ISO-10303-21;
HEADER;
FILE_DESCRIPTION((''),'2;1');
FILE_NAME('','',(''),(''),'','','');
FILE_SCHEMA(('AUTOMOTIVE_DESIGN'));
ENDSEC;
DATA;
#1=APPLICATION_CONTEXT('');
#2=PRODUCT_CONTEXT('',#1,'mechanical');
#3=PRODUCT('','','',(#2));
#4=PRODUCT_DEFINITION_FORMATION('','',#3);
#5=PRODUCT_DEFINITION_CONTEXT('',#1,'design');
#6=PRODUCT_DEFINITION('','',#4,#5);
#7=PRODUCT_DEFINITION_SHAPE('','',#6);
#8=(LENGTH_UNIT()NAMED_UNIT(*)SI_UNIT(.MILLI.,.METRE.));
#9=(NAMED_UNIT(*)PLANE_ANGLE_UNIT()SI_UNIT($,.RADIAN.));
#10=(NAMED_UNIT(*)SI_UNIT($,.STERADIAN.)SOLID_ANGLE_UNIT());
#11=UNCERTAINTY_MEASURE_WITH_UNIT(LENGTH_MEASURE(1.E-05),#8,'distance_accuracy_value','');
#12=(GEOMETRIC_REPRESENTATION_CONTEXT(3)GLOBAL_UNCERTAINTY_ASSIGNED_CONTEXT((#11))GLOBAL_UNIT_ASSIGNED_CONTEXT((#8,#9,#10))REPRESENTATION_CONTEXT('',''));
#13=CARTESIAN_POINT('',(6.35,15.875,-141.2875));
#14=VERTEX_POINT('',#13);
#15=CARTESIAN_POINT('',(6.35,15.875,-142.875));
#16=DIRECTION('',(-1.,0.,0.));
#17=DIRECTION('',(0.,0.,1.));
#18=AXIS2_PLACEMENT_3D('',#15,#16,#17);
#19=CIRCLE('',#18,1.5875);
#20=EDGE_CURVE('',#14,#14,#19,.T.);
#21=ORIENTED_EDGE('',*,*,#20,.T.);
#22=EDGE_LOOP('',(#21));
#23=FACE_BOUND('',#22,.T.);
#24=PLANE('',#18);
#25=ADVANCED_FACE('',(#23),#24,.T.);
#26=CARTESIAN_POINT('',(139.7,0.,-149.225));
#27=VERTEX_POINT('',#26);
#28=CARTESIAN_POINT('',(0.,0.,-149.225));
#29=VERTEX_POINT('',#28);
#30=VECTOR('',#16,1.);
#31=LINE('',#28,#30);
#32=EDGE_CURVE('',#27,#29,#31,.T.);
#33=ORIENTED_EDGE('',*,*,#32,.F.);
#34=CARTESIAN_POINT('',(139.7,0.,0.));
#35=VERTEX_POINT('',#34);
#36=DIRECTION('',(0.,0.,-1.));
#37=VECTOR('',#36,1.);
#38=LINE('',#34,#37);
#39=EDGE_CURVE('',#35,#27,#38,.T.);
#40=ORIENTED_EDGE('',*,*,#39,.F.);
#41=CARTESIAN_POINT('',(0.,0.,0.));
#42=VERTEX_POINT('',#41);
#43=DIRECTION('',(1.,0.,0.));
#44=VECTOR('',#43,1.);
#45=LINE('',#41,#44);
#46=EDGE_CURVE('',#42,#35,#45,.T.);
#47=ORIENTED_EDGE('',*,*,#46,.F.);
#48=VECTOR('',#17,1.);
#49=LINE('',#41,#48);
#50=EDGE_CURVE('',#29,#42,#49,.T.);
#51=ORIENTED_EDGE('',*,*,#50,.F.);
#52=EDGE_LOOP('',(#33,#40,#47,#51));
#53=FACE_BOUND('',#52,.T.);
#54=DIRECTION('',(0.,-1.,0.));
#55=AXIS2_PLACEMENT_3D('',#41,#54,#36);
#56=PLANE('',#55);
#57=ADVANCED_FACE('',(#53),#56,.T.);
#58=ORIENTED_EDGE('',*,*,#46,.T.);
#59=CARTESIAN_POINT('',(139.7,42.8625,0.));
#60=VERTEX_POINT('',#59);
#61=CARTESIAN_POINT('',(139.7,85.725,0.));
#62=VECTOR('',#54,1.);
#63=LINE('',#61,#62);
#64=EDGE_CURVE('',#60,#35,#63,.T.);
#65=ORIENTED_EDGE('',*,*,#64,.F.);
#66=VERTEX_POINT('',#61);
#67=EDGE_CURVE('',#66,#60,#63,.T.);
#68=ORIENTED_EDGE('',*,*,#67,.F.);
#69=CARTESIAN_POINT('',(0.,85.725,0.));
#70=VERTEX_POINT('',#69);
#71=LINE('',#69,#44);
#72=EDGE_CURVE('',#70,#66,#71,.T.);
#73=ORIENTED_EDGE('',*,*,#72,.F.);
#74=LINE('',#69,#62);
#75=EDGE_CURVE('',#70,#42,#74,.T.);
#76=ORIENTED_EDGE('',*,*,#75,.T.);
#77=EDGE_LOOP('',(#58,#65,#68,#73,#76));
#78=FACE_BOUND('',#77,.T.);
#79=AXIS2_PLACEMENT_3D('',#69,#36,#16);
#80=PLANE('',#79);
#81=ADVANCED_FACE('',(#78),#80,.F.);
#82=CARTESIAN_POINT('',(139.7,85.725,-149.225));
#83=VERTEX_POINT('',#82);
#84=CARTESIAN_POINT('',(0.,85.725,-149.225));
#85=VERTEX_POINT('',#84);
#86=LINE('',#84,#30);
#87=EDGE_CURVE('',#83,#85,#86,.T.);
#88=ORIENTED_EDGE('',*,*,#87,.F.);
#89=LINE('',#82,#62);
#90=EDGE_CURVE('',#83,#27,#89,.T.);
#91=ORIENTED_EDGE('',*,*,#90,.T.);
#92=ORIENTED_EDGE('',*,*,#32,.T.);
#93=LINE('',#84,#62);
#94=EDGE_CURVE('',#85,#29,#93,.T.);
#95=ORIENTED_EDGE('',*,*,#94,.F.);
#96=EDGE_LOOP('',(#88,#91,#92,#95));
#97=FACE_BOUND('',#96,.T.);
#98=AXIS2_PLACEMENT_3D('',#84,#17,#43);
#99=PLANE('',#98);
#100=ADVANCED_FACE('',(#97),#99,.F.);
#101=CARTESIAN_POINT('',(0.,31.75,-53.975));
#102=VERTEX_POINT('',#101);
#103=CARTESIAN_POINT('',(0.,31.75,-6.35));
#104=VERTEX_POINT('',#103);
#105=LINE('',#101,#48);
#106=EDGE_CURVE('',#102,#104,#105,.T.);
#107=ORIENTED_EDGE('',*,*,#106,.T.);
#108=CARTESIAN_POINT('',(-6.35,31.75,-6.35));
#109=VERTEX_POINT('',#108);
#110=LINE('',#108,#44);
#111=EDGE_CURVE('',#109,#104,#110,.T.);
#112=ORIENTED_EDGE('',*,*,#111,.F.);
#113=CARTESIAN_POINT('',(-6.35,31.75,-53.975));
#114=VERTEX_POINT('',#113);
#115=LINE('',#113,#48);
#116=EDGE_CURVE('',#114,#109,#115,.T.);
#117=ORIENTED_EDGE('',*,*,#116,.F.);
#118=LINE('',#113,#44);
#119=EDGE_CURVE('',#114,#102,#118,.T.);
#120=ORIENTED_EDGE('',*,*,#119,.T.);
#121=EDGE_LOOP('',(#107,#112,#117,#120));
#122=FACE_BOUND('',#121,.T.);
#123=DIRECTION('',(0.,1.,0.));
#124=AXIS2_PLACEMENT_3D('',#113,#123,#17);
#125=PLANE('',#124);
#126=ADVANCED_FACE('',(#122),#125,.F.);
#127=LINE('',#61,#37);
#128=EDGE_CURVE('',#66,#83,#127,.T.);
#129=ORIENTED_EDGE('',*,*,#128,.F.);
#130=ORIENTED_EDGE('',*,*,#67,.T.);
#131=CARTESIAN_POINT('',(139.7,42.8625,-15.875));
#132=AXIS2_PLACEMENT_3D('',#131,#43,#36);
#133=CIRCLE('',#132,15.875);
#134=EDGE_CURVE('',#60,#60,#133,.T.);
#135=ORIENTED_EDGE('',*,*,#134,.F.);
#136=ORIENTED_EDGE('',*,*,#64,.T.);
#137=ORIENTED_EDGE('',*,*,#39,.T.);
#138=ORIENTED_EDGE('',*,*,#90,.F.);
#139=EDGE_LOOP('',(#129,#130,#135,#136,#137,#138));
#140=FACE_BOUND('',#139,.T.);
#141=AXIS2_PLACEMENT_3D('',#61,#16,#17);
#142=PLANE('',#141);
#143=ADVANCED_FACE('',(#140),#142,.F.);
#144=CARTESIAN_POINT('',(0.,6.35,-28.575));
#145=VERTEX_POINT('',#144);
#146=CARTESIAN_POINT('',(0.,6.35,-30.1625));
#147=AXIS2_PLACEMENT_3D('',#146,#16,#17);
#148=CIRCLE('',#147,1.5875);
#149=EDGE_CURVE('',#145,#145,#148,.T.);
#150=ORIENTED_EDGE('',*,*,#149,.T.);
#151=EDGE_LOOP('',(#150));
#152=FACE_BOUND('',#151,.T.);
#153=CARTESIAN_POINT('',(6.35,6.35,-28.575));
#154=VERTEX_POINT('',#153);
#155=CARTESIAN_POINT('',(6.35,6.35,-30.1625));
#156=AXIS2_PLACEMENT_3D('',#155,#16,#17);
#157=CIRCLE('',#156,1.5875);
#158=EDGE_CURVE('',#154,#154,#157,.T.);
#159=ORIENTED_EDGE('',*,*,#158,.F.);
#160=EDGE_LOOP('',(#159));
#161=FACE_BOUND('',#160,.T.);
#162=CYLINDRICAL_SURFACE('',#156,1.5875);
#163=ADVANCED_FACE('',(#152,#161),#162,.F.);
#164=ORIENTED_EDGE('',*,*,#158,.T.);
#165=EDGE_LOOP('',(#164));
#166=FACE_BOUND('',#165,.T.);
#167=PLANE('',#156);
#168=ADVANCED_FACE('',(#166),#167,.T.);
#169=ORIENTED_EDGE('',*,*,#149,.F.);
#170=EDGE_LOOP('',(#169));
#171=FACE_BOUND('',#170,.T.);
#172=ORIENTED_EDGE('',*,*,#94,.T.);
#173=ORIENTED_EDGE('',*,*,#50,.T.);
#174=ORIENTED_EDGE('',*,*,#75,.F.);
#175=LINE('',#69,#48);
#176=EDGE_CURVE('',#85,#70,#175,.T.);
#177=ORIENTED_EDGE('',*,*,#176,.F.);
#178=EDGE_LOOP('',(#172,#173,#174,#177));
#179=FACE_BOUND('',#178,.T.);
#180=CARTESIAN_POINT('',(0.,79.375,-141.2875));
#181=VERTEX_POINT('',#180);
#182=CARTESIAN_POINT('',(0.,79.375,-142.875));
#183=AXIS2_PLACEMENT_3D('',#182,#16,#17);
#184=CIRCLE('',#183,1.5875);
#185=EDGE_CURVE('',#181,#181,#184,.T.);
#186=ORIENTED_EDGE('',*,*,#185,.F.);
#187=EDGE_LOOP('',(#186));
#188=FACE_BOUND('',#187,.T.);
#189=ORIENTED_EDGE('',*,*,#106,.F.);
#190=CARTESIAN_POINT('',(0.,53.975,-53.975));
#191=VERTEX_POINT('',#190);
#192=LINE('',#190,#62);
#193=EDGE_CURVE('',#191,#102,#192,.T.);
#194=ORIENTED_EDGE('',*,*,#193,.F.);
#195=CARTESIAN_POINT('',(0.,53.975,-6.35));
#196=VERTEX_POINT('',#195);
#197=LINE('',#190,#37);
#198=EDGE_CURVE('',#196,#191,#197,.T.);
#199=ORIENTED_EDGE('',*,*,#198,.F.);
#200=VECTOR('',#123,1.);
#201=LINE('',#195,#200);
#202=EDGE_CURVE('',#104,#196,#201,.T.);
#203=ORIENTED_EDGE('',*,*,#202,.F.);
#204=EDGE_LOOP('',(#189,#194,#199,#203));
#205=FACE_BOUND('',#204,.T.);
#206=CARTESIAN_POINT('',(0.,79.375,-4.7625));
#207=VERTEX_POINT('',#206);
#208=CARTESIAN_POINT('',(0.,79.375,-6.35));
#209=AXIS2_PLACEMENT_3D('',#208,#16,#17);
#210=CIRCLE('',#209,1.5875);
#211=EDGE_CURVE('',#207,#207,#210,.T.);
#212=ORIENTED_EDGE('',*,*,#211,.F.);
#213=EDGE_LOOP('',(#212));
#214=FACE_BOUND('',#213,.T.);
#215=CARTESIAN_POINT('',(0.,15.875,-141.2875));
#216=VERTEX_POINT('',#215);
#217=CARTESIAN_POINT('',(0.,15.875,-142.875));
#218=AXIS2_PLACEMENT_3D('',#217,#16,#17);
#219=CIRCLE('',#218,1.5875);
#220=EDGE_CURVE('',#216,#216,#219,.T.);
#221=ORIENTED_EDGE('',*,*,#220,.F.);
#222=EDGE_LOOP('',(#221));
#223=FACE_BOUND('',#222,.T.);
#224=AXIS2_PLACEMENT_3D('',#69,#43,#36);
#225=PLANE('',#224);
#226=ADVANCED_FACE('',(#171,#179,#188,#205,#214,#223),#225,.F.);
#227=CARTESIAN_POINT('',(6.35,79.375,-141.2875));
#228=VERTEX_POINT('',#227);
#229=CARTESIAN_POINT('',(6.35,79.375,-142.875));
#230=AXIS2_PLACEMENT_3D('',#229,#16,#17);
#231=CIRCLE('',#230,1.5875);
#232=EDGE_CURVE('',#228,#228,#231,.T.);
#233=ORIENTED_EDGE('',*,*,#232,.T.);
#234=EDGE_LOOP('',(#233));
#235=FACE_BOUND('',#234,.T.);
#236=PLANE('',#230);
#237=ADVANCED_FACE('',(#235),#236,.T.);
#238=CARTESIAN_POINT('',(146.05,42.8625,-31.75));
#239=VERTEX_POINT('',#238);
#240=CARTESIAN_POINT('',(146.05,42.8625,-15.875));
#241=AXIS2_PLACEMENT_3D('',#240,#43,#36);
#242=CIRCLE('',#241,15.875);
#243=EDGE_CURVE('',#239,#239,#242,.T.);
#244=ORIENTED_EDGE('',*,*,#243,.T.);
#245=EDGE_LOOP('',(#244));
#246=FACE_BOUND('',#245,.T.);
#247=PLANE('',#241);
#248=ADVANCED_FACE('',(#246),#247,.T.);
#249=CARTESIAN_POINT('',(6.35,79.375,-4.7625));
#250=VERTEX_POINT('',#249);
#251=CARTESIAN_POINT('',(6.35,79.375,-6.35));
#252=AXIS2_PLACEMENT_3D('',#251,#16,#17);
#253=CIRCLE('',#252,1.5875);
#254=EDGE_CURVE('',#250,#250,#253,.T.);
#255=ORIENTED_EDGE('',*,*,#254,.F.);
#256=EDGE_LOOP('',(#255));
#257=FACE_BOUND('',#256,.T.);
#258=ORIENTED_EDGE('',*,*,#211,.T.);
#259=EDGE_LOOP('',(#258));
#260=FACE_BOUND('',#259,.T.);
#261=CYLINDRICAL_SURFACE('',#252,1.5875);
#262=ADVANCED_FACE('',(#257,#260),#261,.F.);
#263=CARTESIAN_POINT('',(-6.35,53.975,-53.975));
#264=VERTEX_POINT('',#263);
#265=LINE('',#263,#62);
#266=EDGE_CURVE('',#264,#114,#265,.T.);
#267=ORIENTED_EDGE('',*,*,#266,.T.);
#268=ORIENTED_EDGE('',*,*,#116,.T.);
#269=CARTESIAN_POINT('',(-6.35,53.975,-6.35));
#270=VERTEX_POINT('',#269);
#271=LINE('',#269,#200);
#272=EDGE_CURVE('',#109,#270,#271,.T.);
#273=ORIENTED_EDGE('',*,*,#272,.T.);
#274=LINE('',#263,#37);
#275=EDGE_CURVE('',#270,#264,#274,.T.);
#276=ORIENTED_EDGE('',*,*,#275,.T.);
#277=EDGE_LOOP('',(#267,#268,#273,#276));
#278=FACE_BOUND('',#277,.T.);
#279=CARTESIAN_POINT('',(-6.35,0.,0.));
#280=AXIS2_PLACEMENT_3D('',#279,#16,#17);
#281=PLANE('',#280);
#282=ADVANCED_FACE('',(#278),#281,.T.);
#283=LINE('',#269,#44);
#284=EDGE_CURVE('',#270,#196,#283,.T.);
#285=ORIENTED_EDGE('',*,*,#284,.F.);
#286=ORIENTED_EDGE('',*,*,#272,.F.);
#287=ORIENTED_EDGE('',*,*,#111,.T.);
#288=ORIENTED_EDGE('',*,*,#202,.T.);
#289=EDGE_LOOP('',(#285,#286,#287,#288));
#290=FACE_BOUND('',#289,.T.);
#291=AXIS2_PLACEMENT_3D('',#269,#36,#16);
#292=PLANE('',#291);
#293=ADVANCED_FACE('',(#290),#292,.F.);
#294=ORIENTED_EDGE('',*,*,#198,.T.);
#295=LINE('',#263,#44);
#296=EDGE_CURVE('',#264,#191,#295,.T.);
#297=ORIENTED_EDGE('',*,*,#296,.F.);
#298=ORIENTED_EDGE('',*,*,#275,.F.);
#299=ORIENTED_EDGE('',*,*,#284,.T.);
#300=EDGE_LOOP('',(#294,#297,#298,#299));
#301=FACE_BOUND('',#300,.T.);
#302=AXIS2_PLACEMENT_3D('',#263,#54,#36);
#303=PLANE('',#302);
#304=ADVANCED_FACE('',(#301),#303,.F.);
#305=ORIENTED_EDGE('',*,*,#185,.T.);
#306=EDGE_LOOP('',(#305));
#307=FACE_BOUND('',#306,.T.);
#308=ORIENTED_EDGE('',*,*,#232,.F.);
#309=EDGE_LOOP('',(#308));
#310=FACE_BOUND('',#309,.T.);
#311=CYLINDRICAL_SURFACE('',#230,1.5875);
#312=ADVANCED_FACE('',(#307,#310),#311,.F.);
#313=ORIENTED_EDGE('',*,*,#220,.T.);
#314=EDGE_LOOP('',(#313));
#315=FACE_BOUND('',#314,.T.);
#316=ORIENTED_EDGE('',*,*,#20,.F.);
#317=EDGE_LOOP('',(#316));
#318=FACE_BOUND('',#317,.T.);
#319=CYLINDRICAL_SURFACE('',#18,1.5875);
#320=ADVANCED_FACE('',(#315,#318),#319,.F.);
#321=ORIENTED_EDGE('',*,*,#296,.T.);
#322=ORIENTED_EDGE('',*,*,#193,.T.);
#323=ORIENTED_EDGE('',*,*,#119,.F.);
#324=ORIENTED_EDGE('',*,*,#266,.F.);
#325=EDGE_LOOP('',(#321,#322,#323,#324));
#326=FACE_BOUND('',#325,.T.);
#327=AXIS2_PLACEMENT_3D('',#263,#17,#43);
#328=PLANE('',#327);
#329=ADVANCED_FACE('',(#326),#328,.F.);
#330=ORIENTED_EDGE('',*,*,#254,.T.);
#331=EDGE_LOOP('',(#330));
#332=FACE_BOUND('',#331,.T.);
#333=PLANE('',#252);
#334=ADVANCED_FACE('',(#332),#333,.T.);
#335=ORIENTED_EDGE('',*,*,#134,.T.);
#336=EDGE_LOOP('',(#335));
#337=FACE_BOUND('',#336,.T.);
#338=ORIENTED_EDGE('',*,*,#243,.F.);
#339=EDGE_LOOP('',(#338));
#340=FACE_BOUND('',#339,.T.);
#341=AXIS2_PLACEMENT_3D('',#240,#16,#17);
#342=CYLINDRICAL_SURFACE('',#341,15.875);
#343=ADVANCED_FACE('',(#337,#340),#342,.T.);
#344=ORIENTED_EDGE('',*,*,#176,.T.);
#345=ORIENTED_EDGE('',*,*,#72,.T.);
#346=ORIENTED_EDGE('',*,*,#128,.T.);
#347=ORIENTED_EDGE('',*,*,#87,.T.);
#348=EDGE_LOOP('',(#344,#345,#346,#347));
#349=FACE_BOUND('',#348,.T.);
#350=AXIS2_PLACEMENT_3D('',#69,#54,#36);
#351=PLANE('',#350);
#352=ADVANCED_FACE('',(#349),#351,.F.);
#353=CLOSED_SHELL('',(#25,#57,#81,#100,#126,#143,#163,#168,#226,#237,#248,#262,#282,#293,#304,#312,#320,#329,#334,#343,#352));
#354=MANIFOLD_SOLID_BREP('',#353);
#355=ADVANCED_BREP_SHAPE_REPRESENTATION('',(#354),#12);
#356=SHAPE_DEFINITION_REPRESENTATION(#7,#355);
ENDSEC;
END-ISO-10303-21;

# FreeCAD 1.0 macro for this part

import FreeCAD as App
import Part
import Sketcher

V = App.Vector
Q = App.Units.Quantity


def add_polygon(sketch, points):
    """Adds a closed chain of lines whose ends are joined by coincident constraints."""
    first, n = sketch.GeometryCount, len(points)
    for a, b in zip(points, points[1:] + points[:1]):
        sketch.addGeometry(Part.LineSegment(App.Vector(*a, 0), App.Vector(*b, 0)), False)
    for i in range(n):
        sketch.addConstraint(Sketcher.Constraint("Coincident", first + i, 2, first + (i + 1) % n, 1))

doc = App.newDocument("Part")
body = doc.addObject("PartDesign::Body", "Body")

# Sketch on XZ plane
sketch1 = doc.addObject("Sketcher::SketchObject", "Sketch")
body.addObject(sketch1)
sketch1.AttachmentSupport = (doc.XZ_Plane, [""])
sketch1.MapMode = "FlatFace"
add_polygon(sketch1, [(0, -149), (0, 0), (140, 0), (140, -149)])  # lines 0-3
sketch1.addConstraint([
    Sketcher.Constraint("Vertical", 0),
    Sketcher.Constraint("Horizontal", 1),
    Sketcher.Constraint("Vertical", 2),
    Sketcher.Constraint("Horizontal", 3),
    Sketcher.Constraint("Coincident", 0, 2, -1, 1),
    Sketcher.Constraint("DistanceX", 1, 1, 1, 2, Q("5.5 in")),
    Sketcher.Constraint("DistanceY", 0, 1, 0, 2, Q("5.875 in")),
])
pad1 = doc.addObject("PartDesign::Pad", "Pad")
body.addObject(pad1)
pad1.Profile = sketch1
pad1.Length = Q("3.375 in")
pad1.Reversed = True

# Sketch on YZ plane
sketch2 = doc.addObject("Sketcher::SketchObject", "Sketch001")
body.addObject(sketch2)
sketch2.AttachmentSupport = (doc.YZ_Plane, [""])
sketch2.MapMode = "FlatFace"
add_polygon(sketch2, [(54, -54), (32, -54), (32, -6), (54, -6)])  # lines 0-3
sketch2.addConstraint([
    Sketcher.Constraint("Horizontal", 0),
    Sketcher.Constraint("Vertical", 1),
    Sketcher.Constraint("Horizontal", 2),
    Sketcher.Constraint("Vertical", 3),
    Sketcher.Constraint("DistanceX", 0, 2, 0, 1, Q("0.875 in")),
    Sketcher.Constraint("DistanceY", 1, 1, 1, 2, Q("1.875 in")),
    Sketcher.Constraint("DistanceX", -1, 1, 0, 2, Q("1.25 in")),
    Sketcher.Constraint("DistanceY", 1, 2, -1, 1, Q("0.25 in")),
])
pad2 = doc.addObject("PartDesign::Pad", "Pad001")
body.addObject(pad2)
pad2.Profile = sketch2
pad2.Length = Q("0.25 in")
pad2.Reversed = True

# Sketch on YZ plane
sketch3 = doc.addObject("Sketcher::SketchObject", "Sketch002")
body.addObject(sketch3)
sketch3.AttachmentSupport = (doc.YZ_Plane, [""])
sketch3.MapMode = "FlatFace"
sketch3.AttachmentOffset = App.Placement(V(0, 0, 5.5 * 25.4), App.Rotation())
sketch3.addGeometry(Part.Circle(V(43, -16, 0), V(0, 0, 1), 16), False)
sketch3.addConstraint([
    Sketcher.Constraint("Diameter", 0, Q("1.25 in")),
    Sketcher.Constraint("DistanceX", -1, 1, 0, 3, Q("1.6875 in")),
    Sketcher.Constraint("DistanceY", 0, 3, -1, 1, Q("0.625 in")),
])
pad3 = doc.addObject("PartDesign::Pad", "Pad002")
body.addObject(pad3)
pad3.Profile = sketch3
pad3.Length = Q("0.25 in")

# Sketch on YZ plane
sketch4 = doc.addObject("Sketcher::SketchObject", "Sketch003")
body.addObject(sketch4)
sketch4.AttachmentSupport = (doc.YZ_Plane, [""])
sketch4.MapMode = "FlatFace"
sketch4.addGeometry([
    Part.Circle(V(79.4, -6.3, 0), V(0, 0, 1), 1.6),
    Part.Circle(V(79.4, -142.9, 0), V(0, 0, 1), 1.6),
    Part.Circle(V(15.9, -142.9, 0), V(0, 0, 1), 1.6),
    Part.Circle(V(6.3, -30.2, 0), V(0, 0, 1), 1.6),
], False)
sketch4.addConstraint([
    Sketcher.Constraint("Equal", 0, 1),
    Sketcher.Constraint("Equal", 1, 2),
    Sketcher.Constraint("Equal", 2, 3),
    Sketcher.Constraint("Horizontal", 1, 3, 2, 3),
    Sketcher.Constraint("Vertical", 0, 3, 1, 3),
    Sketcher.Constraint("Diameter", 0, Q("0.125 in")),
    Sketcher.Constraint("DistanceX", 2, 3, 1, 3, Q("2.5 in")),
    Sketcher.Constraint("DistanceY", 0, 3, -1, 1, Q("0.25 in")),
    Sketcher.Constraint("DistanceX", -1, 1, 3, 3, Q("0.25 in")),
    Sketcher.Constraint("DistanceX", -1, 1, 0, 3, Q("3.125 in")),
    Sketcher.Constraint("DistanceY", 1, 3, -1, 1, Q("5.625 in")),
    Sketcher.Constraint("DistanceY", 3, 3, -1, 1, Q("1.1875 in")),
])
pocket1 = doc.addObject("PartDesign::Pocket", "Pocket")
body.addObject(pocket1)
pocket1.Profile = sketch4
pocket1.Length = Q("0.25 in")
pocket1.Reversed = True

doc.recompute()
